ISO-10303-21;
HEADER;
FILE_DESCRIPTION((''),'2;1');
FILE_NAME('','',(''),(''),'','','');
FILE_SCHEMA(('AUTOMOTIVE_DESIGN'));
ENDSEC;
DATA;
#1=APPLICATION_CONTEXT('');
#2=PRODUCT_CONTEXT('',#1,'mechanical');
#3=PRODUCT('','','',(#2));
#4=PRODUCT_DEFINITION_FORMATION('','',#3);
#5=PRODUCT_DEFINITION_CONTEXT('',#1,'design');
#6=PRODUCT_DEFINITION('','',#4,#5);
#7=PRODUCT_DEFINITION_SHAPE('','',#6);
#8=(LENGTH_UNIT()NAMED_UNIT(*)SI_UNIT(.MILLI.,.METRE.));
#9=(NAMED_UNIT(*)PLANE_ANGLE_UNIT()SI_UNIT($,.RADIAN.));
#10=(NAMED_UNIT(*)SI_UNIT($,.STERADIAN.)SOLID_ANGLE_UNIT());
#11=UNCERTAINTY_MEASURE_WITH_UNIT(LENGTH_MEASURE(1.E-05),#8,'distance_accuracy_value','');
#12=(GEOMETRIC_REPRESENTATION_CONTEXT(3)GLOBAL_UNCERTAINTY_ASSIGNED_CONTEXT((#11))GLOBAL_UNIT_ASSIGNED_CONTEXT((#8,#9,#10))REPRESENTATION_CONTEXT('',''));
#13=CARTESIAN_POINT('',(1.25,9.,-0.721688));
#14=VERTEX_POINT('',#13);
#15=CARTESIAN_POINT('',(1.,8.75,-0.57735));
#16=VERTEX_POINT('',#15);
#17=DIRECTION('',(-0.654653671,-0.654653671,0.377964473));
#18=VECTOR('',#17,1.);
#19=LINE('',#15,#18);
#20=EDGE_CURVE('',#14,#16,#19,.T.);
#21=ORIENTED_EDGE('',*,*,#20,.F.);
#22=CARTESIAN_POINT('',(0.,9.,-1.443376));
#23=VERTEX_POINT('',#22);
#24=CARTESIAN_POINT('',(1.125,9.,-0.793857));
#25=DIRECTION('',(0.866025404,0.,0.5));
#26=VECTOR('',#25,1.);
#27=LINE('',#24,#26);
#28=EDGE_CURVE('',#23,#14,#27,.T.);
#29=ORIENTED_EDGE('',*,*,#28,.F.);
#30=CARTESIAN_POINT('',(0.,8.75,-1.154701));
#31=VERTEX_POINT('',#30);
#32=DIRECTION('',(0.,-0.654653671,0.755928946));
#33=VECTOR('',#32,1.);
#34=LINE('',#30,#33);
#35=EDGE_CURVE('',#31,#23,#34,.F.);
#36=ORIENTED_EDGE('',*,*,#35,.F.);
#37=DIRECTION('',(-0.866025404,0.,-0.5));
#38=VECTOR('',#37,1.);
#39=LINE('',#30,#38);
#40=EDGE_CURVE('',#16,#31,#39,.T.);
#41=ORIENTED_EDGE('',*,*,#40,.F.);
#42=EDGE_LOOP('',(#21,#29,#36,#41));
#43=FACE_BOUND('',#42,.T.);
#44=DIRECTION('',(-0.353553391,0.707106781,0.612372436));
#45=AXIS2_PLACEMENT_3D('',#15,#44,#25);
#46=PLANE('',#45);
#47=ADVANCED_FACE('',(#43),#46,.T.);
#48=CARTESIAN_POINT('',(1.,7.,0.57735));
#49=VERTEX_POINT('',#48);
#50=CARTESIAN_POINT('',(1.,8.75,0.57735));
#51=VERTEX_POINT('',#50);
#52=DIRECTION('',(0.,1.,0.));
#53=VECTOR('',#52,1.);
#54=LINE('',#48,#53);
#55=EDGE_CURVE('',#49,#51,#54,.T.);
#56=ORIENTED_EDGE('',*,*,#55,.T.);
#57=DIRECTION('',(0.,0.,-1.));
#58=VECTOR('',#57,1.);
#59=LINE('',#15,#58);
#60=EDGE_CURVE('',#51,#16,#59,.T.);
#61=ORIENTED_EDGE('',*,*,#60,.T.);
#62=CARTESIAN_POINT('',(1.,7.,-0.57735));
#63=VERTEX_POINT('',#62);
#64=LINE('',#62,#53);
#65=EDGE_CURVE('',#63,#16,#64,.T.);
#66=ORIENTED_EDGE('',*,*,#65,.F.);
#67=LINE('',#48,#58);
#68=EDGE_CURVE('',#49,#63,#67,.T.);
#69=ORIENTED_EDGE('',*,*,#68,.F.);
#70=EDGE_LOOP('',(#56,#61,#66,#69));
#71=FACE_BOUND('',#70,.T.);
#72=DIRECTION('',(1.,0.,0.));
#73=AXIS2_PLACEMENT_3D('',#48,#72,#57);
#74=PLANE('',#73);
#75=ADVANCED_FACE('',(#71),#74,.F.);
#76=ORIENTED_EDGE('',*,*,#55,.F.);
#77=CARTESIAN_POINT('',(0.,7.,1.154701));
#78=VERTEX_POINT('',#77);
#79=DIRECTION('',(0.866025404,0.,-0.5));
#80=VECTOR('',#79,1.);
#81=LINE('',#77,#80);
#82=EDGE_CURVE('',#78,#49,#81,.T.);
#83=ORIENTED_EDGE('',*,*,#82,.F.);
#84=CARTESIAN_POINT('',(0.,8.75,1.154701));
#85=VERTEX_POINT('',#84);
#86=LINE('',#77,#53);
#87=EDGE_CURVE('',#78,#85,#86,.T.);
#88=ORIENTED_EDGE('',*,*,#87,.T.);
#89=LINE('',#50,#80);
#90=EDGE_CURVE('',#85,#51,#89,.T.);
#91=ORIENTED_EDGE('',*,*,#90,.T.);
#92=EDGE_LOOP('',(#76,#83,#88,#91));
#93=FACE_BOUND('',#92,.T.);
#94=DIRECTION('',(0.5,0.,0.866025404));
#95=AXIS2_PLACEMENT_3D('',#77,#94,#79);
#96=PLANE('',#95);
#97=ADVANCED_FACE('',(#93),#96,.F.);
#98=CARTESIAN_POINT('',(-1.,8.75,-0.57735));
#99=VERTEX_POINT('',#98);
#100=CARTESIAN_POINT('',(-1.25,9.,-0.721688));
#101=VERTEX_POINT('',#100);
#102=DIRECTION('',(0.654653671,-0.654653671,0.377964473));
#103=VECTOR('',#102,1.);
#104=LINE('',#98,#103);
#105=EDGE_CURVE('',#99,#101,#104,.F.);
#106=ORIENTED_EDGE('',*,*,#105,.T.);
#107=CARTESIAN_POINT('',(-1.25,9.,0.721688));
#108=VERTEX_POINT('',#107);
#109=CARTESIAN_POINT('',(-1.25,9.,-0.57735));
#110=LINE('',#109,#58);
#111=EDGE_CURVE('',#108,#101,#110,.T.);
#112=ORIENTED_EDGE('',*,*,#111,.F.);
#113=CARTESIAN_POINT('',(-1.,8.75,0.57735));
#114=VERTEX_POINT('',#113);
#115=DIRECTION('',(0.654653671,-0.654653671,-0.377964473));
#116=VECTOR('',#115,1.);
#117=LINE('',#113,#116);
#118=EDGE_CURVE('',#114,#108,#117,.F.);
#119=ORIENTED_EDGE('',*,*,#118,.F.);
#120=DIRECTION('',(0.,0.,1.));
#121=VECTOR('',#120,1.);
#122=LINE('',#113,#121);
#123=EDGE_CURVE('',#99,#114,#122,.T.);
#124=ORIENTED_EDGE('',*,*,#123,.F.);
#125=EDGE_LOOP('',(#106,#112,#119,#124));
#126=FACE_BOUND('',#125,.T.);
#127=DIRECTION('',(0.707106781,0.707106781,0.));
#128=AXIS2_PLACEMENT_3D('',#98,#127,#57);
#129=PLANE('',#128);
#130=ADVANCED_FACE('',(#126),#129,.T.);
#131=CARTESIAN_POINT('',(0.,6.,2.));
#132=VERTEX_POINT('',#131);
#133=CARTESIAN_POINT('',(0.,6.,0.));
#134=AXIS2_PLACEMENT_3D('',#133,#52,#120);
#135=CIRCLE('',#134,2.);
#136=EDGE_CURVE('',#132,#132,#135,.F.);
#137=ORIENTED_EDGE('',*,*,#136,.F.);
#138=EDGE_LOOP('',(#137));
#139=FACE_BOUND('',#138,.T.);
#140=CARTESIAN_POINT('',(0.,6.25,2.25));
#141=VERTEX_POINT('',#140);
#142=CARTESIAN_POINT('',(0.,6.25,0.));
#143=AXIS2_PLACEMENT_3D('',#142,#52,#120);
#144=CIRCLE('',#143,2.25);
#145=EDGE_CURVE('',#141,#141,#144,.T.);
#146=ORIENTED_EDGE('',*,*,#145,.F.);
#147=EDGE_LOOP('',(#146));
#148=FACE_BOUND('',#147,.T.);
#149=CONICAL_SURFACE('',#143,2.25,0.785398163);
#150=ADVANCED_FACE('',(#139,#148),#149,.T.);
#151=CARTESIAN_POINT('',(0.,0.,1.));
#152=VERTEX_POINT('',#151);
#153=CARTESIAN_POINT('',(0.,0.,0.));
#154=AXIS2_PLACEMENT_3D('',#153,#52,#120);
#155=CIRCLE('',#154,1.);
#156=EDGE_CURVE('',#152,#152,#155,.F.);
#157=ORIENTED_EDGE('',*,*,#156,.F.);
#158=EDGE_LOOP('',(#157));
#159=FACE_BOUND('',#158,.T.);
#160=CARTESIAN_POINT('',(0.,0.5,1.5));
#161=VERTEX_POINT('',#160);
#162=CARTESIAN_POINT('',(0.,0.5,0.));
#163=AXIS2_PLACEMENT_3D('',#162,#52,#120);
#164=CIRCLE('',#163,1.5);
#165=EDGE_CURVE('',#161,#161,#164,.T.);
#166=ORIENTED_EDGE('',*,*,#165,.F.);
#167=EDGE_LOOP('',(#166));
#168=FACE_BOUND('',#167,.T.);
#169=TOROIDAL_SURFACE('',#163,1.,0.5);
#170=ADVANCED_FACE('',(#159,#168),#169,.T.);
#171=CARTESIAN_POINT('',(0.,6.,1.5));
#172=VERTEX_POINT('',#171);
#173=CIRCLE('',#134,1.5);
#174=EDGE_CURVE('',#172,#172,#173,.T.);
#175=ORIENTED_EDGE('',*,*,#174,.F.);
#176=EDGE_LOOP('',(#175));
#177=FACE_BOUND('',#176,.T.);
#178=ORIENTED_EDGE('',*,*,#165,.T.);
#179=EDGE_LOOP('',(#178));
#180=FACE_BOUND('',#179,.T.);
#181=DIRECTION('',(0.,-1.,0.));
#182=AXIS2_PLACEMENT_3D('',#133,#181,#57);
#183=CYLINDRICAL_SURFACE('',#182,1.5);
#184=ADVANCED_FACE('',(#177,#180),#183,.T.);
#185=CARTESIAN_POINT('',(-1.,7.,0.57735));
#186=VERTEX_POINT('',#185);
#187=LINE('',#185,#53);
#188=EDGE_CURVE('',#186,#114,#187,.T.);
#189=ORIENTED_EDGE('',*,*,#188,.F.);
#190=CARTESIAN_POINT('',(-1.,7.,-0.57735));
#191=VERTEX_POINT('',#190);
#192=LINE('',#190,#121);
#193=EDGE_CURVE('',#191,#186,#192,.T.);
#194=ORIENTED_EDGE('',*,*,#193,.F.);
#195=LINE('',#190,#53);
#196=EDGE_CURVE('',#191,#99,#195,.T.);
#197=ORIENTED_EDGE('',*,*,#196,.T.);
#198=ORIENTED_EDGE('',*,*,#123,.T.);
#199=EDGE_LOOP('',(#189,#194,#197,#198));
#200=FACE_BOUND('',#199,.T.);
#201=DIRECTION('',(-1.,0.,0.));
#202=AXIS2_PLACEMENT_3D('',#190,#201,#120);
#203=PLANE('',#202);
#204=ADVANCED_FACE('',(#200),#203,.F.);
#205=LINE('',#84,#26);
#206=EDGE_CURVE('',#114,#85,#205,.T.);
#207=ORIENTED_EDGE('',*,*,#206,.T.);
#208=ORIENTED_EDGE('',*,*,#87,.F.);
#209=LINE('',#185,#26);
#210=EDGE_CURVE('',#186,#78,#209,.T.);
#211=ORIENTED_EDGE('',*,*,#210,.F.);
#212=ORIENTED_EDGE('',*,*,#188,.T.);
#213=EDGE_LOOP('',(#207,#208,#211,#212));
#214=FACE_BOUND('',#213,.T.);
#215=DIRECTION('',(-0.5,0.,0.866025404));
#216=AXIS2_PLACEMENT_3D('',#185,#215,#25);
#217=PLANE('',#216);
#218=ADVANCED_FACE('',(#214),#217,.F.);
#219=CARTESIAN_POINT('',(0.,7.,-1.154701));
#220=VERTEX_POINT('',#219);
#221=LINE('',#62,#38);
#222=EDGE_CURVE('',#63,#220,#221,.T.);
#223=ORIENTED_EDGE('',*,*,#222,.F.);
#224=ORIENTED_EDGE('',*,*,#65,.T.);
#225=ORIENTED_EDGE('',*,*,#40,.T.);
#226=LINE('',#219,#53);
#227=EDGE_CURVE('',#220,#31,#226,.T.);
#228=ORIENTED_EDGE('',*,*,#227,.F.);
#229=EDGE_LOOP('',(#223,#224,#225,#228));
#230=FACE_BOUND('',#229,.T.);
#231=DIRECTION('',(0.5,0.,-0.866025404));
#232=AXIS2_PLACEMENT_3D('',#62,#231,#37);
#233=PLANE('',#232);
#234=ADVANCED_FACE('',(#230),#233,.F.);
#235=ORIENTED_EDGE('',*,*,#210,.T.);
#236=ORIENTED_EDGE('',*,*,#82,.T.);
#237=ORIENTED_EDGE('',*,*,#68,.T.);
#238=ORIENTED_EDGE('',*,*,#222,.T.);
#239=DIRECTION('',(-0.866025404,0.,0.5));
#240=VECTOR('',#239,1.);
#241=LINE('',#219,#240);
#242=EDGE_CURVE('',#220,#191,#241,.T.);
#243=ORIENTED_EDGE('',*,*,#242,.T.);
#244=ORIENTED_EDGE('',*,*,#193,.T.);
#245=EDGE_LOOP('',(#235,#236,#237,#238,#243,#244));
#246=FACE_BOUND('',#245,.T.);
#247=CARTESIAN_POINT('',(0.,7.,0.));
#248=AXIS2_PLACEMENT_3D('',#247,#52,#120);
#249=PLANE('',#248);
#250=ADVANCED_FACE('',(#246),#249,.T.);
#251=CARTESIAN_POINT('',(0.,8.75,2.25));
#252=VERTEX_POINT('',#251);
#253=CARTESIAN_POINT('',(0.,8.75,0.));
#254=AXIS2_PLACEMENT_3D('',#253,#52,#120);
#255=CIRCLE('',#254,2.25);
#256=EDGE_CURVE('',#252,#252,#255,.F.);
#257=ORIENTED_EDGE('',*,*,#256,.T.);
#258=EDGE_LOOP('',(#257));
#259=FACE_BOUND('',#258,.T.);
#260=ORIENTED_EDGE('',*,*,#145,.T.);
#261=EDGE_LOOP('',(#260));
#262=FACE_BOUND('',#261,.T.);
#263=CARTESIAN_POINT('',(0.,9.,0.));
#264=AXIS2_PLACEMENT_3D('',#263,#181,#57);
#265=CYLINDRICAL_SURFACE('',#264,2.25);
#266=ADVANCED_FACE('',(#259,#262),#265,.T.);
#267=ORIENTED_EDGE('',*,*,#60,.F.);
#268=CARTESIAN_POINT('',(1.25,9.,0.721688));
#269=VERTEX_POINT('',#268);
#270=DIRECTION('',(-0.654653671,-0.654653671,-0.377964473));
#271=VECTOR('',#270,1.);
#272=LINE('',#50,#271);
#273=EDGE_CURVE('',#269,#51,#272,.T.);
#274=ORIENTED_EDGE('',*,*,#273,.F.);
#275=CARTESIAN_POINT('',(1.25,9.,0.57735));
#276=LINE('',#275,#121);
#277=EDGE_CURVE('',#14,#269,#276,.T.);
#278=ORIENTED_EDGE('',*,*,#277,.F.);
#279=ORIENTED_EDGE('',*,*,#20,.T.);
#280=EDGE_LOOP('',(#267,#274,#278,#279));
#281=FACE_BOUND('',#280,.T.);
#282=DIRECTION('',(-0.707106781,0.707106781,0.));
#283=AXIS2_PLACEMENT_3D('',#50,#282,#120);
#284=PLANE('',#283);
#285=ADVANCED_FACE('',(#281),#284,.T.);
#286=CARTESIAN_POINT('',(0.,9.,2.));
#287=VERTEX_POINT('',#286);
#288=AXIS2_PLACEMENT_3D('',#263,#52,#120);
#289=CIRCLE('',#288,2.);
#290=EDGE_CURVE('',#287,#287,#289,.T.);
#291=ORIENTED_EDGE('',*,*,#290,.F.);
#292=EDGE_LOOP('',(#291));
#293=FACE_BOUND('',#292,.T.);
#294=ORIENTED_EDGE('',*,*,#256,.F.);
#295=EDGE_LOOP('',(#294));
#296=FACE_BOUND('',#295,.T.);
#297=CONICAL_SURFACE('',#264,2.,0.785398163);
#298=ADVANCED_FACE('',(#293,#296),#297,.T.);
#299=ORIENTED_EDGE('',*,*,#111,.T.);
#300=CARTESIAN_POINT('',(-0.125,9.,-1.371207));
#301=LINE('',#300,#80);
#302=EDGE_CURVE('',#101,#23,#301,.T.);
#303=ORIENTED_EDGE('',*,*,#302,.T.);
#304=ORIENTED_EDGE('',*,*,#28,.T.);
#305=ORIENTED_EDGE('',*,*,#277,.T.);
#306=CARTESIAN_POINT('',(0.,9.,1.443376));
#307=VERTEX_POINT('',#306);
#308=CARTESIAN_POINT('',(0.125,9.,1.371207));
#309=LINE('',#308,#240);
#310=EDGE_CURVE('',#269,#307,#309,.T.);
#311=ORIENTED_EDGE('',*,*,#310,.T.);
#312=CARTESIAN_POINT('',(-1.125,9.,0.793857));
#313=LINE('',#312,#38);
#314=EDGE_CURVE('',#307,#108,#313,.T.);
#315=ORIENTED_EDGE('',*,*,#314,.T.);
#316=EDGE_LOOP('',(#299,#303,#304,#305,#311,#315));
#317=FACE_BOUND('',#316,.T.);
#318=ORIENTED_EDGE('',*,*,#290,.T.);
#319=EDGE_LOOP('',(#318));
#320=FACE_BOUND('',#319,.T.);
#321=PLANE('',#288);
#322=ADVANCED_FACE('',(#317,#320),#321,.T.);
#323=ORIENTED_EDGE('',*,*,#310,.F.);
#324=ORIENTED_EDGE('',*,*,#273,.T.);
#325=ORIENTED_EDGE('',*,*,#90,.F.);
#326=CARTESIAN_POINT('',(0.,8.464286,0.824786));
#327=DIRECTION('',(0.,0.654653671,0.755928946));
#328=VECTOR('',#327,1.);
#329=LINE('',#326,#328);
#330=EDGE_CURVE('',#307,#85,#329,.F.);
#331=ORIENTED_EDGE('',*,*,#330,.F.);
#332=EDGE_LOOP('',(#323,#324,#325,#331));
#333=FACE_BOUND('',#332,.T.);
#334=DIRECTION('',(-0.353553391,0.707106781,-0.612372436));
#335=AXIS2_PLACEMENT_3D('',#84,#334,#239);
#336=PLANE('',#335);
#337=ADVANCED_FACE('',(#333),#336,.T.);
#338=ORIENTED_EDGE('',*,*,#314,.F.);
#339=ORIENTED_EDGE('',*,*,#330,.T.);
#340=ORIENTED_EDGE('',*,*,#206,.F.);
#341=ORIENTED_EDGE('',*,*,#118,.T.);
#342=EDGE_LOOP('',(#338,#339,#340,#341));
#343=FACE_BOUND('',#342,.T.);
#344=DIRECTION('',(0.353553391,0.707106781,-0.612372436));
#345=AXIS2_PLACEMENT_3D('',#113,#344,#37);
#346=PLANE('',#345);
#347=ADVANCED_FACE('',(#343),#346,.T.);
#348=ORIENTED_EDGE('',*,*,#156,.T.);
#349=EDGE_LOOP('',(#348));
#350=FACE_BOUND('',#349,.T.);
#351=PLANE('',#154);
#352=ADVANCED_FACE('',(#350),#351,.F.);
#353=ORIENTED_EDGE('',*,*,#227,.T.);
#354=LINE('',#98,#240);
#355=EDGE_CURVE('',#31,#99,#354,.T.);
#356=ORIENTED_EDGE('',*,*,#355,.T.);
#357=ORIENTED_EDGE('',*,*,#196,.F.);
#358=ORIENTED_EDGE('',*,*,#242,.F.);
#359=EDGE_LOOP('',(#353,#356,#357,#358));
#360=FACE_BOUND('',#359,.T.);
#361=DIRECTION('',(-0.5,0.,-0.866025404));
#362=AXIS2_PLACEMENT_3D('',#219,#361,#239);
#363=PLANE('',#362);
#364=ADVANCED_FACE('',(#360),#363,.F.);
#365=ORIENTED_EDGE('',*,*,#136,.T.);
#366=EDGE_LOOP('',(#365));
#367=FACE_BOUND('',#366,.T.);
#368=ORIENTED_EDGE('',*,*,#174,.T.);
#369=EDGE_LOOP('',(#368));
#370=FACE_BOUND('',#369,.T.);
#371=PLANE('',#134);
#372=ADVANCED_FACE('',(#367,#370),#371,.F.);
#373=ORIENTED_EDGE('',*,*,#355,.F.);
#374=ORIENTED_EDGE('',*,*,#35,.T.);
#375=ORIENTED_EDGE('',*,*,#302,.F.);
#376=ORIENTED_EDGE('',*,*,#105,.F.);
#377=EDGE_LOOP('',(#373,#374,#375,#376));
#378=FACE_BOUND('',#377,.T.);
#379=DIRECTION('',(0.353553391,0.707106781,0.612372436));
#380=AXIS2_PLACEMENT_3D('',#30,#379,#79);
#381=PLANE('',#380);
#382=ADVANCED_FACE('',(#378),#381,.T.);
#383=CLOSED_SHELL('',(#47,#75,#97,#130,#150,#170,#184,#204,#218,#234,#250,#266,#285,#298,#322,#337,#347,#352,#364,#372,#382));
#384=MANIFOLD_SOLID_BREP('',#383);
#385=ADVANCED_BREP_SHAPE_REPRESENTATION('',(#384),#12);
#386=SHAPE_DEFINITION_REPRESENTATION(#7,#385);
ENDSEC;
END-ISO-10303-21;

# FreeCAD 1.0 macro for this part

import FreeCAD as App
import Part
import Sketcher

V = App.Vector
Q = App.Units.Quantity


def edges_at(feature, points):
    """Names of the edges that pass closest to the given points."""
    edges = feature.Shape.Edges
    near = lambda p: min(range(len(edges)), key=lambda i: edges[i].distToShape(Part.Vertex(*p))[0])
    return sorted({f"Edge{near(p) + 1}" for p in points})

doc = App.newDocument("Part")
body = doc.addObject("PartDesign::Body", "Body")

# Sketch on XZ plane
sketch1 = body.newObject("Sketcher::SketchObject", "Sketch")
sketch1.AttachmentSupport = (doc.getObject("XZ_Plane"), [""])
sketch1.MapMode = "FlatFace"
sketch1.addGeometry(Part.Circle(V(0, 0, 0), V(0, 0, 1), 1.5), False)
sketch1.addConstraint([
    Sketcher.Constraint("Coincident", 0, 3, -1, 1),
    Sketcher.Constraint("Diameter", 0, 3.0),
])
pad1 = body.newObject("PartDesign::Pad", "Pad")
pad1.Profile = sketch1
pad1.Length = 6
pad1.Reversed = True

# Sketch on XZ plane
sketch2 = body.newObject("Sketcher::SketchObject", "Sketch001")
sketch2.AttachmentSupport = (doc.getObject("XZ_Plane"), [""])
sketch2.MapMode = "FlatFace"
sketch2.AttachmentOffset = App.Placement(V(0, 0, -6), App.Rotation())
sketch2.addGeometry(Part.Circle(V(0, 0, 0), V(0, 0, 1), 2.2), False)
sketch2.addConstraint([
    Sketcher.Constraint("Coincident", 0, 3, -1, 1),
    Sketcher.Constraint("Diameter", 0, 4.5),
])
pad2 = body.newObject("PartDesign::Pad", "Pad001")
pad2.Profile = sketch2
pad2.Length = 3
pad2.Reversed = True

# Sketch on XZ plane
sketch3 = body.newObject("Sketcher::SketchObject", "Sketch002")
sketch3.AttachmentSupport = (doc.getObject("XZ_Plane"), [""])
sketch3.MapMode = "FlatFace"
sketch3.AttachmentOffset = App.Placement(V(0, 0, -9), App.Rotation())
sketch3.addGeometry([
    Part.LineSegment(V(0, -1.2, 0), V(-1, -0.6, 0)),  # 0
    Part.LineSegment(V(-1, -0.6, 0), V(-1, 0.6, 0)),  # 1
    Part.LineSegment(V(-1, 0.6, 0), V(0, 1.2, 0)),  # 2
    Part.LineSegment(V(0, 1.2, 0), V(1, 0.6, 0)),  # 3
    Part.LineSegment(V(1, 0.6, 0), V(1, -0.6, 0)),  # 4
    Part.LineSegment(V(1, -0.6, 0), V(0, -1.2, 0)),  # 5
], False)
sketch3.addConstraint([
    Sketcher.Constraint("Coincident", 0, 2, 1, 1),
    Sketcher.Constraint("Coincident", 1, 2, 2, 1),
    Sketcher.Constraint("Coincident", 2, 2, 3, 1),
    Sketcher.Constraint("Coincident", 3, 2, 4, 1),
    Sketcher.Constraint("Coincident", 4, 2, 5, 1),
    Sketcher.Constraint("Coincident", 5, 2, 0, 1),
    Sketcher.Constraint("Vertical", 1),
    Sketcher.Constraint("Vertical", 4),
    Sketcher.Constraint("Symmetric", 0, 2, 3, 2, -1, 1),
    Sketcher.Constraint("Symmetric", 2, 2, 5, 2, -1, 1),
    Sketcher.Constraint("PointOnObject", 2, 2, -2),
    Sketcher.Constraint("Parallel", 2, 5),
    Sketcher.Constraint("Horizontal", 1, 2, 3, 2),
    Sketcher.Constraint("Angle", 0, Q("150 deg")),
    Sketcher.Constraint("DistanceX", 0, 2, -1, 1, 1.0),
    Sketcher.Constraint("DistanceY", 1, 1, 1, 2, 1.154701),
])
pocket1 = body.newObject("PartDesign::Pocket", "Pocket")
pocket1.Profile = sketch3
pocket1.Length = 2
pocket1.Reversed = True
doc.recompute()

chamfer = body.newObject("PartDesign::Chamfer", "Chamfer")
chamfer.Base = (pocket1, edges_at(pocket1, [
    (0.5, 9, -0.866),
    (-0.5, 9, -0.866),
    (-1, 9, 0),
    (-0.5, 9, 0.866),
    (0.5, 9, 0.866),
    (1, 9, 0),
    (0, 6, -2.25),
    (0, 9, -2.25),
]))
chamfer.Size = 0.25
doc.recompute()

fillet = body.newObject("PartDesign::Fillet", "Fillet")
fillet.Base = (chamfer, edges_at(chamfer, [(0, 0, -1.5)]))
fillet.Radius = 0.5

doc.recompute()
